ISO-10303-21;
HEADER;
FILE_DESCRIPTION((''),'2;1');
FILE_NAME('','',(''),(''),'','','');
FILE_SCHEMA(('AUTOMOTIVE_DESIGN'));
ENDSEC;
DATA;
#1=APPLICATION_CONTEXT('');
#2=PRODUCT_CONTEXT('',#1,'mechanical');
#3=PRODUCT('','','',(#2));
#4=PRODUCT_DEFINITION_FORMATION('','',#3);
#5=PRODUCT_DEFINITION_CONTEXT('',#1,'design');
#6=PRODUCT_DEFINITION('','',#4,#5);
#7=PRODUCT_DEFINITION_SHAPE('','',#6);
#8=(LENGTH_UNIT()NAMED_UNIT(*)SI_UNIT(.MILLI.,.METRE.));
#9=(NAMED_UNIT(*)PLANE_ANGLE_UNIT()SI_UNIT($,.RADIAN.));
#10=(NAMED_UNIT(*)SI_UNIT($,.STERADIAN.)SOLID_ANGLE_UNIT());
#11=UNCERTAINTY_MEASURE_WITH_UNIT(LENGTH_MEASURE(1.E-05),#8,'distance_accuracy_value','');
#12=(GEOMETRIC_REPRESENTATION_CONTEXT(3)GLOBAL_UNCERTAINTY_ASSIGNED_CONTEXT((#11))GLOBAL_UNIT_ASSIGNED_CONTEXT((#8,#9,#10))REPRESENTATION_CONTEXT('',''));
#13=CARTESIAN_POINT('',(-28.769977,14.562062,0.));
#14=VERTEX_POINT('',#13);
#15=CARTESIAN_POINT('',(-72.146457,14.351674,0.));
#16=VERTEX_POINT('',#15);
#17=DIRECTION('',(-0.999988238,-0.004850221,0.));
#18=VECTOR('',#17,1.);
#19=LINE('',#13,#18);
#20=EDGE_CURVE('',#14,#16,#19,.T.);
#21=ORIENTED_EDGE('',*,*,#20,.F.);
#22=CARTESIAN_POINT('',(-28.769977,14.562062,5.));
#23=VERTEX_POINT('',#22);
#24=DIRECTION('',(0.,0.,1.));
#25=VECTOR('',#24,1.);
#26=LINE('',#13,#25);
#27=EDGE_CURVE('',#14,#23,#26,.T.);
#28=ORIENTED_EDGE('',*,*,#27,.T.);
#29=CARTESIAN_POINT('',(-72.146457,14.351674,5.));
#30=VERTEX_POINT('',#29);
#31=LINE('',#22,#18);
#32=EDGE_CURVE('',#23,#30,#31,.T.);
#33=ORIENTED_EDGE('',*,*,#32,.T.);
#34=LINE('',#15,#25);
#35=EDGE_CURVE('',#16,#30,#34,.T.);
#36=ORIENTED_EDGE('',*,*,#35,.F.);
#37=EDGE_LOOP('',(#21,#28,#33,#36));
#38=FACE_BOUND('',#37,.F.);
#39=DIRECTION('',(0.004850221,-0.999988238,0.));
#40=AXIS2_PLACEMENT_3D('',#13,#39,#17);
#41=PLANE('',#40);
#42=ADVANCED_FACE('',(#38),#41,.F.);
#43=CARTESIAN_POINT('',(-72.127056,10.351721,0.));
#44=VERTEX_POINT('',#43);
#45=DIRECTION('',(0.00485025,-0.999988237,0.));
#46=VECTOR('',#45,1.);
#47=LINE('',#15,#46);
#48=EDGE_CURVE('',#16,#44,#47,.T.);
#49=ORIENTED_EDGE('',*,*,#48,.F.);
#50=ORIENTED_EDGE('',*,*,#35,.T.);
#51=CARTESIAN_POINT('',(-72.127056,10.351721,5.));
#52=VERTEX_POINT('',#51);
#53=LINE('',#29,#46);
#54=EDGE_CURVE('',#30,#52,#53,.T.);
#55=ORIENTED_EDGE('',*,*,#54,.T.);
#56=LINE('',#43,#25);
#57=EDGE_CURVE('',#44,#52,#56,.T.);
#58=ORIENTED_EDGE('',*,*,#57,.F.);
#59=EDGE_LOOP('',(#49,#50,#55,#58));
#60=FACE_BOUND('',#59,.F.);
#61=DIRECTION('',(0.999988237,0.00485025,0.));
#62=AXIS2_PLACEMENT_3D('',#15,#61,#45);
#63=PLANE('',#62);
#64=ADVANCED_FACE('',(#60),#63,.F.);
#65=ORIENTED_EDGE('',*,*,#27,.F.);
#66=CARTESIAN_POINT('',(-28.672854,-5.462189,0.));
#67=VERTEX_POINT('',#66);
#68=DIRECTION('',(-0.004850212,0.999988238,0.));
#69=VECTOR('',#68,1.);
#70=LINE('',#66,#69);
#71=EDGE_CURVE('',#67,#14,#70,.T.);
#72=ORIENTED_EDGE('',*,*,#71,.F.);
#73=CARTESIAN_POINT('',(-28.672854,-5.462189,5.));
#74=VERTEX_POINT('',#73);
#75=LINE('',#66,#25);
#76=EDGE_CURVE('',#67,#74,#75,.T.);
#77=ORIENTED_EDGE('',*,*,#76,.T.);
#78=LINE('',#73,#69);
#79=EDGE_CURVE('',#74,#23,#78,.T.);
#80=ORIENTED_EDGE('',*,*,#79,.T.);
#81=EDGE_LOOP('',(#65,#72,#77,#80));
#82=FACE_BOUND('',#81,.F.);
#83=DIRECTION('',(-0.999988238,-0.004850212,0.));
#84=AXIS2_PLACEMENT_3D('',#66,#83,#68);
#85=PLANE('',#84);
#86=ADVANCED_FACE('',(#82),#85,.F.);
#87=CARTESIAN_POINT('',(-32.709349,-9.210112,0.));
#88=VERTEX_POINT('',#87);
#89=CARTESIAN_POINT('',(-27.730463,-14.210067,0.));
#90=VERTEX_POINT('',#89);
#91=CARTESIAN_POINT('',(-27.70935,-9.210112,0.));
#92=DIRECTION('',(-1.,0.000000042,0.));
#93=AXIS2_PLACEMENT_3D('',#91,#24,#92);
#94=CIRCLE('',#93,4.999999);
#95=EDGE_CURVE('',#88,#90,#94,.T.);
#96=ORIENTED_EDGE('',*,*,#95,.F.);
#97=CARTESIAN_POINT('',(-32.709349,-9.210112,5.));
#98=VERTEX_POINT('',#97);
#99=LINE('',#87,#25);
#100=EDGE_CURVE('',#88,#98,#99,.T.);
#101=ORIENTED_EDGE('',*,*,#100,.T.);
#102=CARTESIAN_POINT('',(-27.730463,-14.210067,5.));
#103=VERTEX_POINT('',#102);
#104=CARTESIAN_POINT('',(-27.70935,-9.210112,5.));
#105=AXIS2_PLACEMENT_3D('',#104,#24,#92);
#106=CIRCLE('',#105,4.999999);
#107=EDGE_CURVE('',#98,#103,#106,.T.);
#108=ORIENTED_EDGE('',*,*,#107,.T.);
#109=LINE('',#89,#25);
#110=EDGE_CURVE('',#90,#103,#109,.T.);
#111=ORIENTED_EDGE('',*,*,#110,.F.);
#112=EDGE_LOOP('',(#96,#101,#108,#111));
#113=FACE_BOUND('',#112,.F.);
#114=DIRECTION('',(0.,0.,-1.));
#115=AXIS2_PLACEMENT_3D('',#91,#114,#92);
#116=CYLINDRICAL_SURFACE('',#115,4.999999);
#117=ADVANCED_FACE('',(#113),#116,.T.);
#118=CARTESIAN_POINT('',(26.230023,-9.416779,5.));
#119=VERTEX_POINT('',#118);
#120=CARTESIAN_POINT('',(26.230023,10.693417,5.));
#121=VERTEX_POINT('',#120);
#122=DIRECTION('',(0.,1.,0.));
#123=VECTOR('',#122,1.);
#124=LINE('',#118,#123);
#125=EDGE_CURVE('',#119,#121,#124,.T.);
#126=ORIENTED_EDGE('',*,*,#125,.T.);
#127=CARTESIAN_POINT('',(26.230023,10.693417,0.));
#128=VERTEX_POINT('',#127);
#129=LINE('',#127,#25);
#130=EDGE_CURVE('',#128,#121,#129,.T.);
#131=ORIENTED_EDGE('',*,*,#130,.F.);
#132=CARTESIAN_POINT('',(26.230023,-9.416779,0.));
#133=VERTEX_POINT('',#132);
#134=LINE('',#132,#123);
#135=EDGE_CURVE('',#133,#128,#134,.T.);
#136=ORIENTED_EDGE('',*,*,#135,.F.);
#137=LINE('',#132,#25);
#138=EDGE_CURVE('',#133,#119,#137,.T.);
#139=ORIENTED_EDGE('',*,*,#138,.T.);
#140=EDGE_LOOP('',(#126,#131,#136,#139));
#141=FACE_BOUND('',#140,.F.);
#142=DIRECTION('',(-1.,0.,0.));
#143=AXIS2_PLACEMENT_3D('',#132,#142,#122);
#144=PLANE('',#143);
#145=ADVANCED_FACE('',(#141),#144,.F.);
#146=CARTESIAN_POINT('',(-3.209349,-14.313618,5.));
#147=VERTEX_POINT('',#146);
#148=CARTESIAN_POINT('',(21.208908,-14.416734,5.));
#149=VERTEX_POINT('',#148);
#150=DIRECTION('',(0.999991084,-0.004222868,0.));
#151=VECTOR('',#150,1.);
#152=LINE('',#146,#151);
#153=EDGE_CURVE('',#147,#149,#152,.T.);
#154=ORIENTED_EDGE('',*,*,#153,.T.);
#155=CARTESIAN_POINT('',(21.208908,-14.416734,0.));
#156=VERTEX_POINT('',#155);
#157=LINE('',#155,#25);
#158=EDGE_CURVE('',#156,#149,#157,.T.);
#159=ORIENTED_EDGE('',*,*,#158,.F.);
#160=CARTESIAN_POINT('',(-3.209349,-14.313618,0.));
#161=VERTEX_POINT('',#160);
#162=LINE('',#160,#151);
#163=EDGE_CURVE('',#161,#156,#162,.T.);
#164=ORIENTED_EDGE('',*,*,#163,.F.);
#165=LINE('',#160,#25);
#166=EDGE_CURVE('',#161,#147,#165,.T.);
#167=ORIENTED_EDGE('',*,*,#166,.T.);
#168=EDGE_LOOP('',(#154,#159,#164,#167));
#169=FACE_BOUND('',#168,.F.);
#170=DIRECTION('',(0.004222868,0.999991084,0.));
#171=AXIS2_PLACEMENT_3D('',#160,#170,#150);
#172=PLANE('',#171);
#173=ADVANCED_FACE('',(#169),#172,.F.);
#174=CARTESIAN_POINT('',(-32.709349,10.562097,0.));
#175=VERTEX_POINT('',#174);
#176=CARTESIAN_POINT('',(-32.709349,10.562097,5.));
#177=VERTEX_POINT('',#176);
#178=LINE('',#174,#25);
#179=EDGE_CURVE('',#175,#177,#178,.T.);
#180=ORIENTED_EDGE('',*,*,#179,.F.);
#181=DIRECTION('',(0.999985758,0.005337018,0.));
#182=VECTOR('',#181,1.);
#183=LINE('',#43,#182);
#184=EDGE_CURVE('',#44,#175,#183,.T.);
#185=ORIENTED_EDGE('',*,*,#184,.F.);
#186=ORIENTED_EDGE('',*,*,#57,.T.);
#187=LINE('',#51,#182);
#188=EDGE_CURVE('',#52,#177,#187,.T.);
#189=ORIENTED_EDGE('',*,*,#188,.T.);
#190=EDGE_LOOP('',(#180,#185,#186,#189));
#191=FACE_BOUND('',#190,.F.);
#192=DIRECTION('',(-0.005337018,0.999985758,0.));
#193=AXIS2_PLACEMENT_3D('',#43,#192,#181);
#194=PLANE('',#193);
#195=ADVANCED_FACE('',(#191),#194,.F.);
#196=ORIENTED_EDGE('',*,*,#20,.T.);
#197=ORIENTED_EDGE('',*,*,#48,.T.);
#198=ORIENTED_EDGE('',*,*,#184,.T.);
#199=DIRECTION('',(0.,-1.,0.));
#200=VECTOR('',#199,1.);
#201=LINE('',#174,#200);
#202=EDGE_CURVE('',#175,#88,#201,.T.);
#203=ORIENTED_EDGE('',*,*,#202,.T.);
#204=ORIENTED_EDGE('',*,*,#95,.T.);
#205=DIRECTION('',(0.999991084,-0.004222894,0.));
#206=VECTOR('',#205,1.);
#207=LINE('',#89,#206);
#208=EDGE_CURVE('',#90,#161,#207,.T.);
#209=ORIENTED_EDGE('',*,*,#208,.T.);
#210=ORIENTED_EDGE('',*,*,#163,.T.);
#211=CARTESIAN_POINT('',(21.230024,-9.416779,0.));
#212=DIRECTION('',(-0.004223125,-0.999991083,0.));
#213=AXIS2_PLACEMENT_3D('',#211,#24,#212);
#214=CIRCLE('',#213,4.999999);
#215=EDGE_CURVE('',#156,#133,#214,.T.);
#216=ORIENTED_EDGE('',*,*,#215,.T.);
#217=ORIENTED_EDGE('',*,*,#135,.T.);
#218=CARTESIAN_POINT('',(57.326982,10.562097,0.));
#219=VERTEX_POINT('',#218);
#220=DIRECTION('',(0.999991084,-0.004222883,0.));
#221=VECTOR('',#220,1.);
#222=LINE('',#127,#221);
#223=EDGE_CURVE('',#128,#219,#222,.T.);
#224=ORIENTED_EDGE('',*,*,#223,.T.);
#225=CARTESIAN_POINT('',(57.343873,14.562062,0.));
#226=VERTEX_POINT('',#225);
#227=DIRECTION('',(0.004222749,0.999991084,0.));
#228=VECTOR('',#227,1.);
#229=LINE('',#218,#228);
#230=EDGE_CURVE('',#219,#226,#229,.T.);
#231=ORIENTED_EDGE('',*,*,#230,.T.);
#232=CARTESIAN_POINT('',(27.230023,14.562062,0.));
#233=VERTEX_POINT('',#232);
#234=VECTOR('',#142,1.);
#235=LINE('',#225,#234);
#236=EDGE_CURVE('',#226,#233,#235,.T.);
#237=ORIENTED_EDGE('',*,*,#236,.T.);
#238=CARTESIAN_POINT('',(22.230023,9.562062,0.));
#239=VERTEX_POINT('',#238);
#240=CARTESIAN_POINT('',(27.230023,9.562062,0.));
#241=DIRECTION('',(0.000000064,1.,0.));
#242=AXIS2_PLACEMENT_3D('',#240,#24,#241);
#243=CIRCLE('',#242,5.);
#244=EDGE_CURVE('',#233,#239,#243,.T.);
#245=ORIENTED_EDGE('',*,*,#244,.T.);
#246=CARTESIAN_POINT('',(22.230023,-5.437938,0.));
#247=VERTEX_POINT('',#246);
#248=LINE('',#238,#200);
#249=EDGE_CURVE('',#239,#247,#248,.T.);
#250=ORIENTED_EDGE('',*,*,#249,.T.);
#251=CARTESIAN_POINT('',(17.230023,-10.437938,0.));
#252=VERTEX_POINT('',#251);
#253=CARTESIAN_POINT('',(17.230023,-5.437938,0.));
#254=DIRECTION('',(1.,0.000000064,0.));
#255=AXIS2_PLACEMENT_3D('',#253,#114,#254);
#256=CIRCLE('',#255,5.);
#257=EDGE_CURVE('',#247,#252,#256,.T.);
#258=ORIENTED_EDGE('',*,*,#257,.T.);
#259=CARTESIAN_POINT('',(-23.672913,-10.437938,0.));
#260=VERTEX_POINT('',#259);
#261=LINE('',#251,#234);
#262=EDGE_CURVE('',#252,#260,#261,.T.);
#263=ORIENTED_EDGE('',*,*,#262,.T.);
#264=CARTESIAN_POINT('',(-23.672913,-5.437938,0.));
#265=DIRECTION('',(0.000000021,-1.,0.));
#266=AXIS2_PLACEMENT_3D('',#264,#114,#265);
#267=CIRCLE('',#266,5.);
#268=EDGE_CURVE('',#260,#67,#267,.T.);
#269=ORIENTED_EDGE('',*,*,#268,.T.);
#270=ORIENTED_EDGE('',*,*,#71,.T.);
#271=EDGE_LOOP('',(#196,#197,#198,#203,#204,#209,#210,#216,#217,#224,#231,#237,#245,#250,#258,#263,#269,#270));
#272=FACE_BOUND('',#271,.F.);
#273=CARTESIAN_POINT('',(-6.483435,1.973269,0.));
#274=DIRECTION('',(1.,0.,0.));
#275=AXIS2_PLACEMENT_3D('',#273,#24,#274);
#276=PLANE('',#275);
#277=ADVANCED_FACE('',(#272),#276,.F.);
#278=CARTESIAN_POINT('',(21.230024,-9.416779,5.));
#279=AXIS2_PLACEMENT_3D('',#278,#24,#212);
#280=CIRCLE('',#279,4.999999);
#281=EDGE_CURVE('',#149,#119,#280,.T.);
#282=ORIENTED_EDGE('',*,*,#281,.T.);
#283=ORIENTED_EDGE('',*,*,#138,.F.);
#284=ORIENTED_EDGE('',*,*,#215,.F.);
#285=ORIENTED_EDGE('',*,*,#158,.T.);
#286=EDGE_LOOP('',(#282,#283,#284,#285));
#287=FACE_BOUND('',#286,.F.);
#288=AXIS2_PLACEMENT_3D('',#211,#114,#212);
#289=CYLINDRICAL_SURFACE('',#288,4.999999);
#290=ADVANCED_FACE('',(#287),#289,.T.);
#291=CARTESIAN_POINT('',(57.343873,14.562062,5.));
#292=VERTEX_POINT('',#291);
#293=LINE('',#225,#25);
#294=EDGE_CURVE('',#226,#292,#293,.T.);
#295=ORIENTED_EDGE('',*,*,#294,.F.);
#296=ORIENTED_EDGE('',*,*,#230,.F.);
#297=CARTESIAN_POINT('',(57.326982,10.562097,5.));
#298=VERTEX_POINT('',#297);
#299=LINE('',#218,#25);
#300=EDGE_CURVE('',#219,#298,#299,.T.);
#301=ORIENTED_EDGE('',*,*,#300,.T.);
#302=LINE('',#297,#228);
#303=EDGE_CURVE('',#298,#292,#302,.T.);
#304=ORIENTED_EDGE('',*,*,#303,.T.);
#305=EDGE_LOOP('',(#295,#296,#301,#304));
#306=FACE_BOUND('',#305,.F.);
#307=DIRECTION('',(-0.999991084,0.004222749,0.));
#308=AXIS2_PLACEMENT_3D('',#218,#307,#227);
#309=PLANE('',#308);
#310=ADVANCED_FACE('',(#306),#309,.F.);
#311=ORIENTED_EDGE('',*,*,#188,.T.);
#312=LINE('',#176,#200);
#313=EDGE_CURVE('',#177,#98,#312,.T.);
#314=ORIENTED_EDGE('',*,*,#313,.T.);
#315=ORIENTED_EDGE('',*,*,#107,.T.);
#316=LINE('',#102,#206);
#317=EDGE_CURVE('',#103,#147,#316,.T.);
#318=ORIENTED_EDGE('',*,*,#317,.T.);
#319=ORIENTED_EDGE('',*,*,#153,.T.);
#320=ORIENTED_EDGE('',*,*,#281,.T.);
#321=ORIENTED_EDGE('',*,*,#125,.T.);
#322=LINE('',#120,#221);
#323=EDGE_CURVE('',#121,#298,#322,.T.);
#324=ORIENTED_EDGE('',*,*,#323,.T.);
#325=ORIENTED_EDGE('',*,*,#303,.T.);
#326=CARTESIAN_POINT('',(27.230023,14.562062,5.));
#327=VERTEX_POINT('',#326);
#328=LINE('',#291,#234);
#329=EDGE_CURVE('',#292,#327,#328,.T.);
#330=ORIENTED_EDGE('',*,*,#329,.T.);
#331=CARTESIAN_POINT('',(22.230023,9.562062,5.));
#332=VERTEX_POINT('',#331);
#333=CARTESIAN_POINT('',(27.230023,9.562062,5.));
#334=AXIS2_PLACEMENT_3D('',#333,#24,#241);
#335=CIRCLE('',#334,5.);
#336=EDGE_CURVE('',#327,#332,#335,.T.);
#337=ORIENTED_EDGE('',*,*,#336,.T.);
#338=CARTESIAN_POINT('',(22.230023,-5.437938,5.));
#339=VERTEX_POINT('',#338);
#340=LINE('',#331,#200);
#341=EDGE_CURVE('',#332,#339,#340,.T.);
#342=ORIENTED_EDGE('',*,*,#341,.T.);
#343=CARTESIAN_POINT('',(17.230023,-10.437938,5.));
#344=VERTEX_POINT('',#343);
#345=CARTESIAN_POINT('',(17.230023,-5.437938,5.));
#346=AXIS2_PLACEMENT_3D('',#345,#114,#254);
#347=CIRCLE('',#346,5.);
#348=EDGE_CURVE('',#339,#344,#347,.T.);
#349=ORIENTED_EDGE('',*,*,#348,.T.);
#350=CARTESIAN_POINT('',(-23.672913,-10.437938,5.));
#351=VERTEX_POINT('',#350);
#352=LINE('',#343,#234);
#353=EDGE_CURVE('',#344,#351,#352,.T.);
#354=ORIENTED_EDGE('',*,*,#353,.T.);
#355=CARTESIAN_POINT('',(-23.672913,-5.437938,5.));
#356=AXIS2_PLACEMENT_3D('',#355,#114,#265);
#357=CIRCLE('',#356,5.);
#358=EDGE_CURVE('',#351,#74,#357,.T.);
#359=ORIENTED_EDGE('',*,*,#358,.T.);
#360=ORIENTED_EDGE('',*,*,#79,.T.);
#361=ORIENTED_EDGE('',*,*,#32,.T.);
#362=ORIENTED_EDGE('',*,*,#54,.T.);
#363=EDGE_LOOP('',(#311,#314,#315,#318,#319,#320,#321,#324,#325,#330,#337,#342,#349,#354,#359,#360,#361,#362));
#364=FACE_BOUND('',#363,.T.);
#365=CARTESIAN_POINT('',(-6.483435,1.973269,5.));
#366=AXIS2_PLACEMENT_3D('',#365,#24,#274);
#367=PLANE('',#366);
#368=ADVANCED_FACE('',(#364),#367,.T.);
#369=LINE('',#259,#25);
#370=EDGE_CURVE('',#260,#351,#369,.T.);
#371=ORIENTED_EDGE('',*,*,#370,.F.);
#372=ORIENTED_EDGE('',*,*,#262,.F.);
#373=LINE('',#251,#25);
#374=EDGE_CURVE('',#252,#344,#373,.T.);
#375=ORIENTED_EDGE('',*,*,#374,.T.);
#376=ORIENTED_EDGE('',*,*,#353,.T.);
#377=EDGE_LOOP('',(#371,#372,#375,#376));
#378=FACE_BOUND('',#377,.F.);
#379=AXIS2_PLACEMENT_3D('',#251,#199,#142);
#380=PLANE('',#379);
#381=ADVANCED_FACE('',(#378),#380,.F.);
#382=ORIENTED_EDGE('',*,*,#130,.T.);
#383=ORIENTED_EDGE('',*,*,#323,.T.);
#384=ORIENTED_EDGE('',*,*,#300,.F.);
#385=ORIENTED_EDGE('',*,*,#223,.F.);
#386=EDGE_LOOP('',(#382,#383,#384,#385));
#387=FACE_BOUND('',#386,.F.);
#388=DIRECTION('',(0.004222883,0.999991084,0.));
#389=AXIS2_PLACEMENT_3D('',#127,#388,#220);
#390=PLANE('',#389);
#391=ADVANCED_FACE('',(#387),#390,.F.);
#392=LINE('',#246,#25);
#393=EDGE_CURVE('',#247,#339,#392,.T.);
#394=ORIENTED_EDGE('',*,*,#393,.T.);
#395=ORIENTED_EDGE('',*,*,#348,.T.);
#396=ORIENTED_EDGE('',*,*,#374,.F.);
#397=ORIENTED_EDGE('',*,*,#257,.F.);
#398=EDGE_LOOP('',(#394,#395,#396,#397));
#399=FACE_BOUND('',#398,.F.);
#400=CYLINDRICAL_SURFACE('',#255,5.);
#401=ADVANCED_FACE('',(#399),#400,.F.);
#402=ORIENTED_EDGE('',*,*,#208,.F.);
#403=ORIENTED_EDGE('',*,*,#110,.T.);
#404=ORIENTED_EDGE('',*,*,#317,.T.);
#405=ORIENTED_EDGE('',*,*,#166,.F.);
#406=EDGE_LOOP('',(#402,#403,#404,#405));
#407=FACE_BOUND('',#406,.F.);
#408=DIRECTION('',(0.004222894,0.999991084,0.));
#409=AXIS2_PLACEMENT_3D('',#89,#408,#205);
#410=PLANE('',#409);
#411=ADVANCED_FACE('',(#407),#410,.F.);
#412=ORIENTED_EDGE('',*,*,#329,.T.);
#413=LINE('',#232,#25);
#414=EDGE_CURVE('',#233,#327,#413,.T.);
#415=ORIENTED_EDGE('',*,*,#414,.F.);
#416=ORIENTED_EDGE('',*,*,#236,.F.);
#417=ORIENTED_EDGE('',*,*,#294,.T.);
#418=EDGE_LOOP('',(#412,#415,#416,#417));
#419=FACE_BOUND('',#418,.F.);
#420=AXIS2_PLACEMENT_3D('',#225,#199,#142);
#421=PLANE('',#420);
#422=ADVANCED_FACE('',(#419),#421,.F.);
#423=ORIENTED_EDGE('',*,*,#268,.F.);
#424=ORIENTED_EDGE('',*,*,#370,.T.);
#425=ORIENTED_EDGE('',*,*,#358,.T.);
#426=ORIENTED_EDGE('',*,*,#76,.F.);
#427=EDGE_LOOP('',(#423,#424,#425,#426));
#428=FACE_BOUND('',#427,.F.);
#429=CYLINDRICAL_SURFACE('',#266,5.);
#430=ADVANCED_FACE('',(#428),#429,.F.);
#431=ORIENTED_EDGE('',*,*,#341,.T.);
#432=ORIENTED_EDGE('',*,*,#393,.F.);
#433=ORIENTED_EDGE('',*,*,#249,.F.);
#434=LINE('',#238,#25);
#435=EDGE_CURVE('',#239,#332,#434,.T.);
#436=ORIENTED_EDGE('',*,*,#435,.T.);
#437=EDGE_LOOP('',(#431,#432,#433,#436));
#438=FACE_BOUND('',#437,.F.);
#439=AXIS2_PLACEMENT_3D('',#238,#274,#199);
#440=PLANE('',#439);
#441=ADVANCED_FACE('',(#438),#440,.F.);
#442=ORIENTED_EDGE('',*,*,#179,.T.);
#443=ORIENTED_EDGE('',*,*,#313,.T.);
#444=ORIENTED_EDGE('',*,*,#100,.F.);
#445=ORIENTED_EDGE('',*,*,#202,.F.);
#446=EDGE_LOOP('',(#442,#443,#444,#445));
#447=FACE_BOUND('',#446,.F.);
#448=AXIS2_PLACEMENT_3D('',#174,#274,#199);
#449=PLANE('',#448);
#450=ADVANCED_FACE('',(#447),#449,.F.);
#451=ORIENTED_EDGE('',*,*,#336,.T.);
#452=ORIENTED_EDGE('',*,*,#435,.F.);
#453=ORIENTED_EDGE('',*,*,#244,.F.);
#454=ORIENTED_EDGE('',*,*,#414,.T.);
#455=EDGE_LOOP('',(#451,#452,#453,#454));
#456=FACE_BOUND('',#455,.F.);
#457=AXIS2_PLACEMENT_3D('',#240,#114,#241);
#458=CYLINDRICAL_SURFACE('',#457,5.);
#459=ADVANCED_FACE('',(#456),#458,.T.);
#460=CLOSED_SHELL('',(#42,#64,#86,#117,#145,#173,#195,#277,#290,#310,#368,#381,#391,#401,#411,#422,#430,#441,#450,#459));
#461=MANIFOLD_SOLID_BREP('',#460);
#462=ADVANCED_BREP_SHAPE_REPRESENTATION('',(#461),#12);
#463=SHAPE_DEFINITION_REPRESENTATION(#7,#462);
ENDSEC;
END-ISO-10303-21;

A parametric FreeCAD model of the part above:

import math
import FreeCAD as App
import Part
import Sketcher

V = App.Vector

doc = App.newDocument("Part")
body = doc.addObject("PartDesign::Body", "Body")

# Sketch on XY plane
sketch1 = doc.addObject("Sketcher::SketchObject", "Sketch")
body.addObject(sketch1)
sketch1.AttachmentSupport = (doc.XY_Plane, [""])
sketch1.MapMode = "FlatFace"
sketch1.addGeometry([
    Part.LineSegment(V(57.3, 10.6, 0), V(57.3, 14.6, 0)),  # 0
    Part.LineSegment(V(57.3, 14.6, 0), V(27.2, 14.6, 0)),  # 1
    Part.ArcOfCircle(Part.Circle(V(27.2, 9.6, 0), V(0, 0, 1), 5), math.radians(90), math.radians(180)),  # 2
    Part.LineSegment(V(22.2, 9.6, 0), V(22.2, -5.4, 0)),  # 3
    Part.ArcOfCircle(Part.Circle(V(17.2, -5.4, 0), V(0, 0, 1), 5), math.radians(-90), math.radians(0)),  # 4
    Part.LineSegment(V(17.2, -10.4, 0), V(-23.7, -10.4, 0)),  # 5
    Part.ArcOfCircle(Part.Circle(V(-23.7, -5.4, 0), V(0, 0, 1), 5), math.radians(-180), math.radians(-90)),  # 6
    Part.LineSegment(V(-28.7, -5.5, 0), V(-28.8, 14.6, 0)),  # 7
    Part.LineSegment(V(-28.8, 14.6, 0), V(-72.1, 14.4, 0)),  # 8
    Part.LineSegment(V(-72.1, 14.4, 0), V(-72.1, 10.4, 0)),  # 9
    Part.LineSegment(V(-72.1, 10.4, 0), V(-32.7, 10.6, 0)),  # 10
    Part.LineSegment(V(-32.7, 10.6, 0), V(-32.7, -9.2, 0)),  # 11
    Part.ArcOfCircle(Part.Circle(V(-27.7, -9.2, 0), V(0, 0, 1), 5), math.radians(180), math.radians(270)),  # 12
    Part.LineSegment(V(-27.7, -14.2, 0), V(-3.2, -14.3, 0)),  # 13
    Part.LineSegment(V(-3.2, -14.3, 0), V(21.2, -14.4, 0)),  # 14
    Part.ArcOfCircle(Part.Circle(V(21.2, -9.4, 0), V(0, 0, 1), 5), math.radians(-90), math.radians(0)),  # 15
    Part.LineSegment(V(26.2, -9.4, 0), V(26.2, 10.7, 0)),  # 16
    Part.LineSegment(V(26.2, 10.7, 0), V(57.3, 10.6, 0)),  # 17
], False)
sketch1.addConstraint([
    Sketcher.Constraint("Coincident", 0, 2, 1, 1),
    Sketcher.Constraint("Tangent", 1, 2, 2, 1),
    Sketcher.Constraint("Tangent", 2, 2, 3, 1),
    Sketcher.Constraint("Tangent", 3, 2, 4, 2),
    Sketcher.Constraint("Tangent", 4, 1, 5, 1),
    Sketcher.Constraint("Tangent", 5, 2, 6, 2),
    Sketcher.Constraint("Tangent", 6, 1, 7, 1),
    Sketcher.Constraint("Coincident", 7, 2, 8, 1),
    Sketcher.Constraint("Coincident", 8, 2, 9, 1),
    Sketcher.Constraint("Coincident", 9, 2, 10, 1),
    Sketcher.Constraint("Coincident", 10, 2, 11, 1),
    Sketcher.Constraint("Tangent", 11, 2, 12, 1),
    Sketcher.Constraint("Tangent", 12, 2, 13, 1),
    Sketcher.Constraint("Coincident", 13, 2, 14, 1),
    Sketcher.Constraint("Tangent", 14, 2, 15, 1),
    Sketcher.Constraint("Tangent", 15, 2, 16, 1),
    Sketcher.Constraint("Coincident", 16, 2, 17, 1),
    Sketcher.Constraint("Coincident", 17, 2, 0, 1),
    Sketcher.Constraint("Horizontal", 1),
    Sketcher.Constraint("Vertical", 3),
    Sketcher.Constraint("Horizontal", 5),
    Sketcher.Constraint("Vertical", 11),
    Sketcher.Constraint("Vertical", 16),
    Sketcher.Constraint("Equal", 2, 4),
    Sketcher.Constraint("Equal", 4, 6),
    Sketcher.Constraint("Equal", 6, 12),
    Sketcher.Constraint("Equal", 12, 15),
    Sketcher.Constraint("Perpendicular", 7, 8),
    Sketcher.Constraint("Perpendicular", 8, 9),
    Sketcher.Constraint("Perpendicular", 0, 13),
    Sketcher.Constraint("Parallel", 13, 14),
    Sketcher.Constraint("Parallel", 14, 17),
    Sketcher.Constraint("Horizontal", 1, 2, 7, 2),
    Sketcher.Constraint("Horizontal", 10, 2, 17, 2),
    Sketcher.Constraint("Equal", 0, 9),
    Sketcher.Constraint("Radius", 2, 5.0),
    Sketcher.Constraint("DistanceY", 3, 2, 3, 1, 15.0),
    Sketcher.Constraint("Distance", 0, 4.000001),
    Sketcher.Constraint("DistanceX", 4, 3, 15, 3, 4.0),
    Sketcher.Constraint("DistanceX", 7, 2, 4, 3, 46.0),
    Sketcher.Constraint("DistanceX", 1, 2, 1, 1, 30.11385),
    Sketcher.Constraint("DistanceY", 11, 2, 11, 1, 19.772209),
    Sketcher.Constraint("DistanceX", 8, 2, 9, 2, 0.019401),
    Sketcher.Constraint("Distance", 8, 43.37699),
    Sketcher.Constraint("Distance", 10, 39.418268),
    Sketcher.Constraint("DistanceY", 16, 1, 16, 2, 20.110196),
    Sketcher.Constraint("DistanceY", 4, 3, -1, 1, 5.437938),
    Sketcher.Constraint("DistanceX", 12, 3, -1, 1, 27.70935),
    Sketcher.Constraint("DistanceX", 13, 2, -1, 1, 3.209349),
])
pad1 = doc.addObject("PartDesign::Pad", "Pad")
body.addObject(pad1)
pad1.Profile = sketch1
pad1.Length = 5

doc.recompute()
